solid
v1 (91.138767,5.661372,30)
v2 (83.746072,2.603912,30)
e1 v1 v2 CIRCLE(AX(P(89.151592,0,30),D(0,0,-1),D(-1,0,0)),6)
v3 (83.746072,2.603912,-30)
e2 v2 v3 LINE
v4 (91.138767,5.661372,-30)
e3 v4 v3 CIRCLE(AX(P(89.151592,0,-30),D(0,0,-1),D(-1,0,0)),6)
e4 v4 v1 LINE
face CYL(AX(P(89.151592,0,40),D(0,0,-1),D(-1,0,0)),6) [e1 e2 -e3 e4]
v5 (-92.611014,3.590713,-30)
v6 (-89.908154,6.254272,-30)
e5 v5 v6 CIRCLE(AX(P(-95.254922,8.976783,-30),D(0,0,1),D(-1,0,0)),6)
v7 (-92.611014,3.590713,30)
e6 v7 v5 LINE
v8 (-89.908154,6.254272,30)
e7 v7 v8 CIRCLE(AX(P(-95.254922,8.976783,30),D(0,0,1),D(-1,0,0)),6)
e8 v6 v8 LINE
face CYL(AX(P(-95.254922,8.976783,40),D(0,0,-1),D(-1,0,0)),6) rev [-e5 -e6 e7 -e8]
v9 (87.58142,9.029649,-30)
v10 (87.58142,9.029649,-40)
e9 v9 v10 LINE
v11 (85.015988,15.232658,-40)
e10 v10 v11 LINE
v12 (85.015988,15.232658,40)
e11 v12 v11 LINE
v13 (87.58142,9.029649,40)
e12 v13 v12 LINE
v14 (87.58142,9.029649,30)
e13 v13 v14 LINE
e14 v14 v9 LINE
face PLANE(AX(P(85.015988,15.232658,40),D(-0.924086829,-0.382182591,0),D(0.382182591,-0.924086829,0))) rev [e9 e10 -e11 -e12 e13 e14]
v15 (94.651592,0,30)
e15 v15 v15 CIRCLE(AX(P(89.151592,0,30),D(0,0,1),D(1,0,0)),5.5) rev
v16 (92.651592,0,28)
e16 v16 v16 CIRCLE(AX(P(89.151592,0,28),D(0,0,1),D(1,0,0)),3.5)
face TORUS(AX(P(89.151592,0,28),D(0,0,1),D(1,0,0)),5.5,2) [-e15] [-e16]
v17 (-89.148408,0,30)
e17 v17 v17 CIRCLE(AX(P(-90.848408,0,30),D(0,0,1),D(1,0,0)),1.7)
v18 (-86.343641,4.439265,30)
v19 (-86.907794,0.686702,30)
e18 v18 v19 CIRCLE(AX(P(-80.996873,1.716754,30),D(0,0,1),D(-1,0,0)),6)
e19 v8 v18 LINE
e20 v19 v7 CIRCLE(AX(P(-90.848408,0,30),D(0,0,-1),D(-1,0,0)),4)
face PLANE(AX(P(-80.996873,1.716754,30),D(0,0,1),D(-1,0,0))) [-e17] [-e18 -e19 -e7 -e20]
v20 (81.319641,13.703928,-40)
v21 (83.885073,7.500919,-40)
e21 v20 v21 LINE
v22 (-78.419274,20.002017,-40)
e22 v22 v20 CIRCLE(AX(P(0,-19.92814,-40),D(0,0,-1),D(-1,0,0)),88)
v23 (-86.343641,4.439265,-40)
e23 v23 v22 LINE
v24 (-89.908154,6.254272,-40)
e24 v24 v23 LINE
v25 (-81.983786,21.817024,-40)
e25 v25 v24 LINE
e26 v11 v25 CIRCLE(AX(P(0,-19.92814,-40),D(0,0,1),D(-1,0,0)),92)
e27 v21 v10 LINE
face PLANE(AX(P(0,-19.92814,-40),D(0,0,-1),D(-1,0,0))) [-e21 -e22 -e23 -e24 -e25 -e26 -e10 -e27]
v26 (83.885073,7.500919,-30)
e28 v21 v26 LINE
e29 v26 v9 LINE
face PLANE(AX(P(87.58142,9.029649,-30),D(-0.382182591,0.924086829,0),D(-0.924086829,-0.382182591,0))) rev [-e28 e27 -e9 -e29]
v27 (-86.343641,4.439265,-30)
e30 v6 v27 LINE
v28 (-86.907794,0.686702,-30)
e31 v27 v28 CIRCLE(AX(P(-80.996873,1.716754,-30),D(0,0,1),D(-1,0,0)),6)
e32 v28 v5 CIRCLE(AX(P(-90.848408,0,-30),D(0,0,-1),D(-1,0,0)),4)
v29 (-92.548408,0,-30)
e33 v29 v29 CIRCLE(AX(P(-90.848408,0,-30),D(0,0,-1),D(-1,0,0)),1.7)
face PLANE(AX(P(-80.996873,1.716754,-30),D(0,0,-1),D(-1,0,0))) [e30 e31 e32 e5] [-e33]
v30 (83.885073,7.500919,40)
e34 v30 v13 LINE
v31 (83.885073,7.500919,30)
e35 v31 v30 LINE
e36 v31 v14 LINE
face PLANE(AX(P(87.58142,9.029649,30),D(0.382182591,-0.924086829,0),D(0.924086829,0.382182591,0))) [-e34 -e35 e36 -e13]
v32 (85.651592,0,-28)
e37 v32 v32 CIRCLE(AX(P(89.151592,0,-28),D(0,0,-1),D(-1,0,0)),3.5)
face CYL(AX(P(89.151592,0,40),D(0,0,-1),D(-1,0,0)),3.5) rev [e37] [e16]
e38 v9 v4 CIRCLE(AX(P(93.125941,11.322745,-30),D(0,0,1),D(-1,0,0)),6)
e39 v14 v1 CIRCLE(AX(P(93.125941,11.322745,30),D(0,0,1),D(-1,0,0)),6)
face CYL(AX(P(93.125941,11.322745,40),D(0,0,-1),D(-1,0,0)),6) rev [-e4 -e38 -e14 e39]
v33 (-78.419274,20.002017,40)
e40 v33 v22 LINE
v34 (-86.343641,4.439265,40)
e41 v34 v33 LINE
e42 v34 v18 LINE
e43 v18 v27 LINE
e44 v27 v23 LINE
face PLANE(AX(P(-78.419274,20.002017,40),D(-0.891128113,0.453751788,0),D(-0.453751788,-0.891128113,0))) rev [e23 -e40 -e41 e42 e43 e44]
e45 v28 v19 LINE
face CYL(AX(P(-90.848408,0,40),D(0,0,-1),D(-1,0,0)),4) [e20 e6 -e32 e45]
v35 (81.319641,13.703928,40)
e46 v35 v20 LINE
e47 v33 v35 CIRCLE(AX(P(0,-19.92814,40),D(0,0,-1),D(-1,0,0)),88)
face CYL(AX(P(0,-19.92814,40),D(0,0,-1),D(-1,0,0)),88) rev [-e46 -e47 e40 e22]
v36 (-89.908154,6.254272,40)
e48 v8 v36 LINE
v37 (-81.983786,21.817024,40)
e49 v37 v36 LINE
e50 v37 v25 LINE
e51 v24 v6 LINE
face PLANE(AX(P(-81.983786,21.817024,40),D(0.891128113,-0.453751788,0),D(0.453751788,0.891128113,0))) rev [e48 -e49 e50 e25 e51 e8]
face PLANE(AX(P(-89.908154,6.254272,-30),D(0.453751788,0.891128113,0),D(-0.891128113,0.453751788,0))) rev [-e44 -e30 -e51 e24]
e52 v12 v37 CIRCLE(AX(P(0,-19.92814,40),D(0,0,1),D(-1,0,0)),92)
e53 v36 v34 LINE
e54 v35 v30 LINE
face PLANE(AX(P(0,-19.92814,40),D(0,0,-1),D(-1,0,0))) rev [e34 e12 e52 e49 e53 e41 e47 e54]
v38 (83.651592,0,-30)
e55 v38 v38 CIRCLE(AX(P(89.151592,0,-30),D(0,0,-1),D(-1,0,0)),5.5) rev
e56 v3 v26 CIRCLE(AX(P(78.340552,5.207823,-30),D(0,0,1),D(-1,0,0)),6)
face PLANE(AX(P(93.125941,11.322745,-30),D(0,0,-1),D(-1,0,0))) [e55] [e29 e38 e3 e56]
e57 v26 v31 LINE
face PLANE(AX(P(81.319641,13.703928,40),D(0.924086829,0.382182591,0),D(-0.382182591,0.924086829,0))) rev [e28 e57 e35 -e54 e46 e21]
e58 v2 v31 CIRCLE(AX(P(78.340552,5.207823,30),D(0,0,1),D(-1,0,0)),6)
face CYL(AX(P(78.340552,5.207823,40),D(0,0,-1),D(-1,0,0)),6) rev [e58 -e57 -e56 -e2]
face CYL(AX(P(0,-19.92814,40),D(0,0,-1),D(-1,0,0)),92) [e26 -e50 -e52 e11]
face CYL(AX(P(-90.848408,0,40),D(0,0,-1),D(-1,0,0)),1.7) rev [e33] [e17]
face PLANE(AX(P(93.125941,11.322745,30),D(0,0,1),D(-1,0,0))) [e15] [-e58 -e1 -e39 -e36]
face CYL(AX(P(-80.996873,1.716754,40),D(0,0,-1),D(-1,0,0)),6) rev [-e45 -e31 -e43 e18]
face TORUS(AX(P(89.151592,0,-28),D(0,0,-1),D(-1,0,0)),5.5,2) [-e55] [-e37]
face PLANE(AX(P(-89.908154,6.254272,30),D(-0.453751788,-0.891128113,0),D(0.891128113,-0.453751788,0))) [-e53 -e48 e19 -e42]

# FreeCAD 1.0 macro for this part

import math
import FreeCAD as App
import Part
import Sketcher
from FreeCAD import Vector


def edges_at(feature, points):
    """Names of the edges that pass closest to the given points."""
    edges = feature.Shape.Edges
    near = lambda p: min(range(len(edges)), key=lambda i: edges[i].distToShape(Part.Vertex(*p))[0])
    return sorted({f"Edge{near(p) + 1}" for p in points})

doc = App.newDocument("Part")
body = doc.addObject("PartDesign::Body", "Body")

# Sketch on XY plane
sketch1 = doc.addObject("Sketcher::SketchObject", "Sketch")
body.addObject(sketch1)
sketch1.AttachmentSupport = (doc.XY_Plane, [""])
sketch1.MapMode = "FlatFace"
sketch1.addGeometry(Part.LineSegment(Vector(-87.49431, 2.179455, 0), Vector(-78.419274, 20.002017, 0)), False)
sketch1.addGeometry(Part.ArcOfCircle(Part.Circle(Vector(0, -19.92814, 0), Vector(0, 0, 1), 88), math.radians(22.468943), math.radians(153.015349)), False)
sketch1.addGeometry(Part.LineSegment(Vector(81.319641, 13.703928, 0), Vector(85.141467, 4.463059, 0)), False)
sketch1.addGeometry(Part.ArcOfCircle(Part.Circle(Vector(89.151592, 0, 0), Vector(0, 0, 1), 6), math.radians(131.940164), math.radians(452.997722)), False)
sketch1.addGeometry(Part.LineSegment(Vector(88.837814, 5.99179, 0), Vector(85.015988, 15.232658, 0)), False)
sketch1.addGeometry(Part.ArcOfCircle(Part.Circle(Vector(0, -19.92814, 0), Vector(0, 0, 1), 92), math.radians(22.468943), math.radians(153.015349)), False)
sketch1.addGeometry(Part.LineSegment(Vector(-81.983786, 21.817024, 0), Vector(-91.058822, 3.994462, 0)), False)
sketch1.addGeometry(Part.ArcOfCircle(Part.Circle(Vector(-90.848408, 0, 0), Vector(0, 0, 1), 4), math.radians(93.015349), math.radians(393.015349)), False)
sketch1.addGeometry(Part.Circle(Vector(89.151592, 0, 0), Vector(0, 0, 1), 3.5), False)
sketch1.addGeometry(Part.Circle(Vector(-90.848408, 0, 0), Vector(0, 0, 1), 1.7), False)
sketch1.addConstraint(Sketcher.Constraint("Tangent", 0, 2, 1, 2))
sketch1.addConstraint(Sketcher.Constraint("Tangent", 1, 1, 2, 1))
sketch1.addConstraint(Sketcher.Constraint("Coincident", 2, 2, 3, 1))
sketch1.addConstraint(Sketcher.Constraint("Coincident", 3, 2, 4, 1))
sketch1.addConstraint(Sketcher.Constraint("Tangent", 4, 2, 5, 1))
sketch1.addConstraint(Sketcher.Constraint("Tangent", 5, 2, 6, 1))
sketch1.addConstraint(Sketcher.Constraint("Coincident", 6, 2, 7, 1))
sketch1.addConstraint(Sketcher.Constraint("Coincident", 7, 2, 0, 1))
sketch1.addConstraint(Sketcher.Constraint("Coincident", 5, 3, 1, 3))
sketch1.addConstraint(Sketcher.Constraint("Coincident", 8, 3, 3, 3))
sketch1.addConstraint(Sketcher.Constraint("Coincident", 9, 3, 7, 3))
sketch1.addConstraint(Sketcher.Constraint("PointOnObject", 1, 3, -2))
sketch1.addConstraint(Sketcher.Constraint("PointOnObject", 3, 3, -1))
sketch1.addConstraint(Sketcher.Constraint("PointOnObject", 7, 3, -1))
sketch1.addConstraint(Sketcher.Constraint("Parallel", 2, 4))
sketch1.addConstraint(Sketcher.Constraint("Parallel", 0, 6))
sketch1.addConstraint(Sketcher.Constraint("Equal", 2, 4))
sketch1.addConstraint(Sketcher.Constraint("Equal", 0, 6))
sketch1.addConstraint(Sketcher.Constraint("Diameter", 8, 7.0))
sketch1.addConstraint(Sketcher.Constraint("Radius", 1, 88.0))
sketch1.addConstraint(Sketcher.Constraint("Radius", 3, 6.0))
sketch1.addConstraint(Sketcher.Constraint("Radius", 5, 92.0))
sketch1.addConstraint(Sketcher.Constraint("Radius", 7, 4.0))
sketch1.addConstraint(Sketcher.Constraint("Diameter", 9, 3.4))
sketch1.addConstraint(Sketcher.Constraint("Distance", 0, 20.0))
sketch1.addConstraint(Sketcher.Constraint("Distance", 2, 10.0))
sketch1.addConstraint(Sketcher.Constraint("DistanceX", 7, 3, 3, 3, 180.0))
pad1 = doc.addObject("PartDesign::Pad", "Pad")
body.addObject(pad1)
pad1.Profile = sketch1
pad1.Length = 80
pad1.Midplane = True
doc.recompute()

fillet = doc.addObject("PartDesign::Fillet", "Fillet")
body.addObject(fillet)
fillet.Base = (pad1, edges_at(pad1, [
    (-87.494, 2.179, 0),
    (-91.059, 3.994, 0),
    (88.838, 5.992, 0),
    (85.141, 4.463, 0),
]))
fillet.Radius = 6

# Sketch on XY plane
sketch2 = doc.addObject("Sketcher::SketchObject", "Sketch001")
body.addObject(sketch2)
sketch2.AttachmentSupport = (doc.XY_Plane, [""])
sketch2.MapMode = "FlatFace"
sketch2.AttachmentOffset = App.Placement(Vector(0, 0, -40), App.Rotation())
sketch2.addGeometry(Part.LineSegment(Vector(-89.908154, 6.254272, 0), Vector(-86.343641, 4.439265, 0)), False)
sketch2.addGeometry(Part.ArcOfCircle(Part.Circle(Vector(-80.996873, 1.716754, 0), Vector(0, 0, 1), 6), math.radians(153.015349), math.radians(189.885247)), False)
sketch2.addGeometry(Part.ArcOfCircle(Part.Circle(Vector(-90.848408, 0, 0), Vector(0, 0, 1), 4), math.radians(116.145452), math.radians(369.885247)), False)
sketch2.addGeometry(Part.ArcOfCircle(Part.Circle(Vector(-95.254922, 8.976783, 0), Vector(0, 0, 1), 6), math.radians(-63.854548), math.radians(-26.984651)), False)
sketch2.addGeometry(Part.LineSegment(Vector(83.885073, 7.500919, 0), Vector(87.58142, 9.029649, 0)), False)
sketch2.addGeometry(Part.ArcOfCircle(Part.Circle(Vector(93.125941, 11.322745, 0), Vector(0, 0, 1), 6), math.radians(-157.531057), math.radians(-109.341372)), False)
sketch2.addGeometry(Part.ArcOfCircle(Part.Circle(Vector(89.151592, 0, 0), Vector(0, 0, 1), 6), math.radians(154.279258), math.radians(430.658628)), False)
sketch2.addGeometry(Part.ArcOfCircle(Part.Circle(Vector(78.340552, 5.207823, 0), Vector(0, 0, 1), 6), math.radians(-25.720742), math.radians(22.468943)), False)
sketch2.addConstraint(Sketcher.Constraint("Coincident", 0, 2, 1, 1))
sketch2.addConstraint(Sketcher.Constraint("Tangent", 1, 2, 2, 2))
sketch2.addConstraint(Sketcher.Constraint("Tangent", 2, 1, 3, 1))
sketch2.addConstraint(Sketcher.Constraint("Coincident", 3, 2, 0, 1))
sketch2.addConstraint(Sketcher.Constraint("Coincident", 4, 2, 5, 1))
sketch2.addConstraint(Sketcher.Constraint("Tangent", 5, 2, 6, 2))
sketch2.addConstraint(Sketcher.Constraint("Tangent", 6, 1, 7, 1))
sketch2.addConstraint(Sketcher.Constraint("Coincident", 7, 2, 4, 1))
sketch2.addConstraint(Sketcher.Constraint("Equal", 1, 3))
sketch2.addConstraint(Sketcher.Constraint("Equal", 3, 5))
sketch2.addConstraint(Sketcher.Constraint("Equal", 5, 6))
sketch2.addConstraint(Sketcher.Constraint("Equal", 6, 7))
sketch2.addConstraint(Sketcher.Constraint("PointOnObject", 2, 3, -1))
sketch2.addConstraint(Sketcher.Constraint("PointOnObject", 6, 3, -1))
sketch2.addConstraint(Sketcher.Constraint("Equal", 0, 4))
sketch2.addConstraint(Sketcher.Constraint("Radius", 1, 6.0))
sketch2.addConstraint(Sketcher.Constraint("Radius", 2, 4.0))
sketch2.addConstraint(Sketcher.Constraint("Distance", 0, 4.0))
sketch2.addConstraint(Sketcher.Constraint("DistanceX", 2, 3, 6, 3, 180.0))
sketch2.addConstraint(Sketcher.Constraint("DistanceX", 6, 1, 7, 2, 0.139001))
sketch2.addConstraint(Sketcher.Constraint("DistanceY", -1, 1, 1, 2, 0.686702))
sketch2.addConstraint(Sketcher.Constraint("DistanceX", 2, 3, -1, 1, 90.848408))
sketch2.addConstraint(Sketcher.Constraint("DistanceX", -1, 1, 5, 3, 93.125941))
sketch2.addConstraint(Sketcher.Constraint("DistanceX", 0, 2, -1, 1, 86.343641))
sketch2.addConstraint(Sketcher.Constraint("DistanceX", -1, 1, 4, 2, 87.58142))
sketch2.addConstraint(Sketcher.Constraint("DistanceX", 2, 1, 3, 2, 2.70286))
pocket1 = doc.addObject("PartDesign::Pocket", "Pocket")
body.addObject(pocket1)
pocket1.Profile = sketch2
pocket1.Length = 10
pocket1.Reversed = True
doc.recompute()

mirrored = doc.addObject("PartDesign::Mirrored", "Mirrored")
body.addObject(mirrored)
mirrored.Originals = [pocket1]
mirrored.MirrorPlane = (doc.XY_Plane, [""])
body.Tip = mirrored
doc.recompute()

fillet2 = doc.addObject("PartDesign::Fillet", "Fillet001")
body.addObject(fillet2)
fillet2.Base = (mirrored, edges_at(mirrored, [(85.652, 0, 30), (85.652, 0, -30)]))
fillet2.Radius = 2

doc.recompute()
